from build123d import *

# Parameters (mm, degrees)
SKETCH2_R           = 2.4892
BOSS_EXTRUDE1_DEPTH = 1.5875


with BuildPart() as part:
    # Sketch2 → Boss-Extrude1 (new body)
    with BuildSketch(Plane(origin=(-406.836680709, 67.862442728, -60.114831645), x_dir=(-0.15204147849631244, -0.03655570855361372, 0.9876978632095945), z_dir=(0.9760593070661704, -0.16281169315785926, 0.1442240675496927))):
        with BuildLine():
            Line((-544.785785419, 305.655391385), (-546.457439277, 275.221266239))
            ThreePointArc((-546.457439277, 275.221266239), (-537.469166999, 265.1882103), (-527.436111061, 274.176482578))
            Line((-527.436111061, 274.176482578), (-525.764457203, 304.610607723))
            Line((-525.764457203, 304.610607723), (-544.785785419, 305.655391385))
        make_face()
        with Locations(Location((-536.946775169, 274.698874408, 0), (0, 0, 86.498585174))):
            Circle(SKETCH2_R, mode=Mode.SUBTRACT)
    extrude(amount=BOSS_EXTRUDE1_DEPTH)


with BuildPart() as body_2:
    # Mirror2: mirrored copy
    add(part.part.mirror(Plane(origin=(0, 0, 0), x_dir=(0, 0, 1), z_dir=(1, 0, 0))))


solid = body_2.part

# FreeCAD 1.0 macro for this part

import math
import FreeCAD as App
import Part
import Sketcher
from FreeCAD import Vector
Q = App.Units.Quantity

doc = App.newDocument("Part")
body = doc.addObject("PartDesign::Body", "Body")

# Sketch on an angled plane
sketch1 = doc.addObject("Sketcher::SketchObject", "Sketch")
body.addObject(sketch1)
sketch1.Placement = App.Placement(Vector(-406.836681, 67.862443, -60.114832), App.Rotation(Vector(-0.152041478, -0.036555709, 0.987697863), Vector(-0.155536548, -0.985979732, -0.06043467), Vector(0.976059307, -0.162811693, 0.144224068), "ZXY"))
sketch1.addGeometry(Part.LineSegment(Vector(-544.8, 305.7, 0), Vector(-546.5, 275.2, 0)), False)
sketch1.addGeometry(Part.ArcOfCircle(Part.Circle(Vector(-536.9, 274.7, 0), Vector(0, 0, 1), 9.5), math.radians(177), math.radians(357)), False)
sketch1.addGeometry(Part.LineSegment(Vector(-527.4, 274.2, 0), Vector(-525.8, 304.6, 0)), False)
sketch1.addGeometry(Part.LineSegment(Vector(-525.8, 304.6, 0), Vector(-544.8, 305.7, 0)), False)
sketch1.addGeometry(Part.Circle(Vector(-536.9, 274.7, 0), Vector(0, 0, 1), 2.5), False)
sketch1.addConstraint(Sketcher.Constraint("Tangent", 0, 2, 1, 1))
sketch1.addConstraint(Sketcher.Constraint("Tangent", 1, 2, 2, 1))
sketch1.addConstraint(Sketcher.Constraint("Coincident", 2, 2, 3, 1))
sketch1.addConstraint(Sketcher.Constraint("Coincident", 3, 2, 0, 1))
sketch1.addConstraint(Sketcher.Constraint("Coincident", 4, 3, 1, 3))
sketch1.addConstraint(Sketcher.Constraint("Parallel", 0, 2))
sketch1.addConstraint(Sketcher.Constraint("Perpendicular", 2, 3))
sketch1.addConstraint(Sketcher.Constraint("Diameter", 4, Q("0.196 in")))
sketch1.addConstraint(Sketcher.Constraint("Radius", 1, Q("0.375 in")))
sketch1.addConstraint(Sketcher.Constraint("Distance", 0, Q("1.2 in")))
sketch1.addConstraint(Sketcher.Constraint("DistanceX", 0, 2, -1, 1, Q("546.457439 mm")))
sketch1.addConstraint(Sketcher.Constraint("DistanceX", 1, 2, -1, 1, Q("527.436111 mm")))
sketch1.addConstraint(Sketcher.Constraint("DistanceY", -1, 1, 3, 2, Q("305.655391 mm")))
pad1 = doc.addObject("PartDesign::Pad", "Pad")
body.addObject(pad1)
pad1.Profile = sketch1
pad1.Length = Q("0.0625 in")
body2 = doc.addObject("PartDesign::Body", "Body001")
doc.recompute()

mirroring = doc.addObject("Part::Mirroring", "Mirroring")
mirroring.Source = body
mirroring.Base = Vector(0, 0, 0)
mirroring.Normal = Vector(1, 0, 0)
body2.BaseFeature = mirroring
doc.recompute()
body.Visibility = False
mirroring.Visibility = False

doc.recompute()
